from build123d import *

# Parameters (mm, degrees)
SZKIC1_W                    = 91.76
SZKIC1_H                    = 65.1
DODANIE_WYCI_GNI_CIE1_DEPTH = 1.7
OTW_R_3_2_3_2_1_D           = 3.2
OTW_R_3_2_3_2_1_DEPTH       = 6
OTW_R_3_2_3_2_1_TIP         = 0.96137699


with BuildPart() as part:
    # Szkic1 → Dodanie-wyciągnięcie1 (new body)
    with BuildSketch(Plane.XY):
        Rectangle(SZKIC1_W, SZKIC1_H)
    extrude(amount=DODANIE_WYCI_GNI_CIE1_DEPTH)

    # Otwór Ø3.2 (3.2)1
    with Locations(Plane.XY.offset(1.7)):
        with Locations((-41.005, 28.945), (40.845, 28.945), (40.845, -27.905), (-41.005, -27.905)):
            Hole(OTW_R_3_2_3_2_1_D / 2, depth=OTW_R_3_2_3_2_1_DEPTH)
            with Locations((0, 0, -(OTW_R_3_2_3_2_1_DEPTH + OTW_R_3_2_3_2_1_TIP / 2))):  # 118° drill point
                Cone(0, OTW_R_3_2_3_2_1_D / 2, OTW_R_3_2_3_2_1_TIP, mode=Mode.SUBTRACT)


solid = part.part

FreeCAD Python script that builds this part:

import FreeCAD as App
import Part
import Sketcher
Q = App.Units.Quantity

doc = App.newDocument("Part")
body = doc.addObject("PartDesign::Body", "Body")

# Sketch on XY plane
sketch1 = doc.addObject("Sketcher::SketchObject", "Sketch")
body.addObject(sketch1)
sketch1.AttachmentSupport = (doc.XY_Plane, [""])
sketch1.MapMode = "FlatFace"
sketch1.addGeometry([
    Part.LineSegment(App.Vector(-45.88, 32.55, 0), App.Vector(-45.88, -32.55, 0)),
    Part.LineSegment(App.Vector(-45.88, -32.55, 0), App.Vector(45.88, -32.55, 0)),
    Part.LineSegment(App.Vector(45.88, -32.55, 0), App.Vector(45.88, 32.55, 0)),
    Part.LineSegment(App.Vector(45.88, 32.55, 0), App.Vector(-45.88, 32.55, 0)),
], False)
sketch1.addConstraint([
    Sketcher.Constraint("Coincident", 0, 2, 1, 1),
    Sketcher.Constraint("Coincident", 1, 2, 2, 1),
    Sketcher.Constraint("Coincident", 2, 2, 3, 1),
    Sketcher.Constraint("Coincident", 3, 2, 0, 1),
    Sketcher.Constraint("Vertical", 0),
    Sketcher.Constraint("Horizontal", 1),
    Sketcher.Constraint("Vertical", 2),
    Sketcher.Constraint("Horizontal", 3),
    Sketcher.Constraint("Symmetric", 0, 2, 2, 2, -1, 1),
    Sketcher.Constraint("DistanceY", 0, 2, 0, 1, Q("65.1 mm")),
    Sketcher.Constraint("DistanceX", 1, 1, 1, 2, Q("91.76 mm")),
])
pad1 = doc.addObject("PartDesign::Pad", "Pad")
body.addObject(pad1)
pad1.Profile = sketch1
pad1.Length = 1.7

# Sketch on XY plane
sketch2 = doc.addObject("Sketcher::SketchObject", "Sketch001")
body.addObject(sketch2)
sketch2.AttachmentSupport = (doc.XY_Plane, [""])
sketch2.MapMode = "FlatFace"
sketch2.AttachmentOffset = App.Placement(App.Vector(0, 0, 1.7), App.Rotation())
sketch2.addGeometry([
    Part.Circle(App.Vector(-41.005, 28.945, 0), App.Vector(0, 0, 1), 1.6),
    Part.Circle(App.Vector(40.845, 28.945, 0), App.Vector(0, 0, 1), 1.6),
    Part.Circle(App.Vector(40.845, -27.905, 0), App.Vector(0, 0, 1), 1.6),
    Part.Circle(App.Vector(-41.005, -27.905, 0), App.Vector(0, 0, 1), 1.6),
], False)
sketch2.addConstraint([
    Sketcher.Constraint("Equal", 0, 1),
    Sketcher.Constraint("Equal", 1, 2),
    Sketcher.Constraint("Equal", 2, 3),
    Sketcher.Constraint("Horizontal", 0, 3, 1, 3),
    Sketcher.Constraint("Horizontal", 2, 3, 3, 3),
    Sketcher.Constraint("Vertical", 1, 3, 2, 3),
    Sketcher.Constraint("Vertical", 0, 3, 3, 3),
    Sketcher.Constraint("Diameter", 0, Q("3.2 mm")),
    Sketcher.Constraint("DistanceX", 0, 3, 1, 3, Q("81.85 mm")),
    Sketcher.Constraint("DistanceY", 2, 3, 1, 3, Q("56.85 mm")),
    Sketcher.Constraint("DistanceX", 0, 3, -1, 1, Q("41.005 mm")),
    Sketcher.Constraint("DistanceY", -1, 1, 0, 3, Q("28.945 mm")),
])
doc.recompute()
hole = doc.addObject("PartDesign::Hole", "Hole")
body.addObject(hole)
hole.Profile = sketch2
hole.ThreadType = "None"
hole.Diameter = 3.2
hole.DepthType = "Dimension"
hole.Depth = 6
hole.DrillPoint = "Angled"
hole.DrillPointAngle = 118

doc.recompute()
